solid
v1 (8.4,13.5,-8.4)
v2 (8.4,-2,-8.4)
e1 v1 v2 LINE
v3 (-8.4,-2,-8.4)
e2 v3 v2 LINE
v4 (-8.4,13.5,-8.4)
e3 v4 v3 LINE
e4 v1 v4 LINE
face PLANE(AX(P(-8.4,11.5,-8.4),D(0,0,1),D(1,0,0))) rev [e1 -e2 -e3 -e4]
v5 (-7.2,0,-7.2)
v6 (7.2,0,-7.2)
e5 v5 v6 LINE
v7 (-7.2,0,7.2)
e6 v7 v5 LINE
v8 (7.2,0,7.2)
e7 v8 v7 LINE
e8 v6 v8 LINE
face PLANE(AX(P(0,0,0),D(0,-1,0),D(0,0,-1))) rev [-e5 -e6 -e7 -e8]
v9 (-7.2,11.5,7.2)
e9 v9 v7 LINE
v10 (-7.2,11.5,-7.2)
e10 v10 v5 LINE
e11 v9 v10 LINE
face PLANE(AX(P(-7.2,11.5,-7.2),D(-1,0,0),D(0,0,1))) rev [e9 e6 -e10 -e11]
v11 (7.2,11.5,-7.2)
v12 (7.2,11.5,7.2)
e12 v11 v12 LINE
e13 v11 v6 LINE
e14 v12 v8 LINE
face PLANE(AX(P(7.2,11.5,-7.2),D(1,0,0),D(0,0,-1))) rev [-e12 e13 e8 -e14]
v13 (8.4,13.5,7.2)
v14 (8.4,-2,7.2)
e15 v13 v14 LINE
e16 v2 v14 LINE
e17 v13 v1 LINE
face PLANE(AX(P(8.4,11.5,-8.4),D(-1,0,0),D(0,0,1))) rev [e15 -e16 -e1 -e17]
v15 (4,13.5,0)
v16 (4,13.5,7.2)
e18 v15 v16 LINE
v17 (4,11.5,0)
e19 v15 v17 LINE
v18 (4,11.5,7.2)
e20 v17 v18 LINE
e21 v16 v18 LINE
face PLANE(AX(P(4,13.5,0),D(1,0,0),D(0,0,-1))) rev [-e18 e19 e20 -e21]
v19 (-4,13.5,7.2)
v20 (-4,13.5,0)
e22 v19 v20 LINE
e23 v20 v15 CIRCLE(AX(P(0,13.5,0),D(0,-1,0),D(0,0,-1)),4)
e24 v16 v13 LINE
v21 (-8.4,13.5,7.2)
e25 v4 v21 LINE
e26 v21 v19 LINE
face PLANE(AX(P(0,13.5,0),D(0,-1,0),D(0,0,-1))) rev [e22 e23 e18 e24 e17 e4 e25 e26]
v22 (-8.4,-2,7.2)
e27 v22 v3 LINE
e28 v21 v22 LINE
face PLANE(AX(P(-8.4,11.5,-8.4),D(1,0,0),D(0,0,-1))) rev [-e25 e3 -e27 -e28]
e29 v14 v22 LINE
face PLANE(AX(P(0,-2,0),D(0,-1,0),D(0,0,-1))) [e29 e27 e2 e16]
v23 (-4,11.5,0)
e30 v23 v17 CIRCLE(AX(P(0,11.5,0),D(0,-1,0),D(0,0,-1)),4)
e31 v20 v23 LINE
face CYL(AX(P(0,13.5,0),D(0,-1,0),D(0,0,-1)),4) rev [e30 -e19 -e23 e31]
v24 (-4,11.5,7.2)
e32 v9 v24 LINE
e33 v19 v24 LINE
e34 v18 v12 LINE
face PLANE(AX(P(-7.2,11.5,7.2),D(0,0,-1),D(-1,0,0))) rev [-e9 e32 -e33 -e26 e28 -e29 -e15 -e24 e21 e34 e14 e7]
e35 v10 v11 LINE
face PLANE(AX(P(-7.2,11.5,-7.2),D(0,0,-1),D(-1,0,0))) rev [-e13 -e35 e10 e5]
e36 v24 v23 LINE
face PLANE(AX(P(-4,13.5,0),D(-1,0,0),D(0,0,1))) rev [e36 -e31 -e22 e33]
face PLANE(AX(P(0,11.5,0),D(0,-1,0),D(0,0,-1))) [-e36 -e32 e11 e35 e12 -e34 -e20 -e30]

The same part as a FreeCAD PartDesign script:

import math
import FreeCAD as App
import Part
import Sketcher


def add_polygon(sketch, points):
    """Adds a closed chain of lines whose ends are joined by coincident constraints."""
    first, n = sketch.GeometryCount, len(points)
    for a, b in zip(points, points[1:] + points[:1]):
        sketch.addGeometry(Part.LineSegment(App.Vector(*a, 0), App.Vector(*b, 0)), False)
    for i in range(n):
        sketch.addConstraint(Sketcher.Constraint("Coincident", first + i, 2, first + (i + 1) % n, 1))

doc = App.newDocument("Part")
body = doc.addObject("PartDesign::Body", "Body")

sketch1 = doc.addObject("Sketcher::SketchObject", "Sketch")
body.addObject(sketch1)
sketch1.AttachmentSupport = (doc.XZ_Plane, [""])
sketch1.MapMode = "FlatFace"
add_polygon(sketch1, [(-8.4, -8.4), (-8.4, 7.2), (-7.2, 7.2), (-7.2, -7.2), (7.2, -7.2), (7.2, 7.2), (8.4, 7.2), (8.4, -8.4)])
sketch1.addConstraint(Sketcher.Constraint("Vertical", 0))
sketch1.addConstraint(Sketcher.Constraint("Horizontal", 1))
sketch1.addConstraint(Sketcher.Constraint("Vertical", 2))
sketch1.addConstraint(Sketcher.Constraint("Horizontal", 3))
sketch1.addConstraint(Sketcher.Constraint("Vertical", 4))
sketch1.addConstraint(Sketcher.Constraint("Horizontal", 5))
sketch1.addConstraint(Sketcher.Constraint("Vertical", 6))
sketch1.addConstraint(Sketcher.Constraint("Horizontal", 7))
sketch1.addConstraint(Sketcher.Constraint("Symmetric", 1, 2, 3, 2, -1, 1))
sketch1.addConstraint(Sketcher.Constraint("Symmetric", 0, 2, 5, 2, -2))
sketch1.addConstraint(Sketcher.Constraint("Equal", 3, 2))
sketch1.addConstraint(Sketcher.Constraint("DistanceX", 1, 1, 1, 2, 1.2))
sketch1.addConstraint(Sketcher.Constraint("DistanceX", 3, 1, 3, 2, 14.4))
sketch1.addConstraint(Sketcher.Constraint("DistanceY", 0, 1, 0, 2, 15.6))
pad1 = doc.addObject("PartDesign::Pad", "Pad")
body.addObject(pad1)
pad1.Profile = sketch1
pad1.Length = 11.5
pad1.Reversed = True

sketch2 = doc.addObject("Sketcher::SketchObject", "Sketch001")
body.addObject(sketch2)
sketch2.AttachmentSupport = (doc.XZ_Plane, [""])
sketch2.MapMode = "FlatFace"
add_polygon(sketch2, [(-8, 7), (-8, -8), (8, -8), (8, 7)])
sketch2.addConstraint(Sketcher.Constraint("Vertical", 0))
sketch2.addConstraint(Sketcher.Constraint("Horizontal", 1))
sketch2.addConstraint(Sketcher.Constraint("Vertical", 2))
sketch2.addConstraint(Sketcher.Constraint("Horizontal", 3))
sketch2.addConstraint(Sketcher.Constraint("DistanceX", 1, 1, 1, 2, 16.8))
sketch2.addConstraint(Sketcher.Constraint("DistanceY", 0, 2, 0, 1, 15.6))
sketch2.addConstraint(Sketcher.Constraint("DistanceX", 0, 2, -1, 1, 8.4))
sketch2.addConstraint(Sketcher.Constraint("DistanceY", 0, 2, -1, 1, 8.4))
pad2 = doc.addObject("PartDesign::Pad", "Pad001")
body.addObject(pad2)
pad2.Profile = sketch2
pad2.Length = 2

sketch3 = doc.addObject("Sketcher::SketchObject", "Sketch002")
body.addObject(sketch3)
sketch3.AttachmentSupport = (doc.XZ_Plane, [""])
sketch3.MapMode = "FlatFace"
sketch3.AttachmentOffset = App.Placement(App.Vector(0, 0, -11.5), App.Rotation())
sketch3.addGeometry(Part.LineSegment(App.Vector(-4, 7.2, 0), App.Vector(-4, 0, 0)), False)
sketch3.addGeometry(Part.ArcOfCircle(Part.Circle(App.Vector(0, 0, 0), App.Vector(0, 0, 1), 4), math.radians(180), math.radians(360)), False)
sketch3.addGeometry(Part.LineSegment(App.Vector(4, 0, 0), App.Vector(4, 7.2, 0)), False)
sketch3.addGeometry(Part.LineSegment(App.Vector(4, 7.2, 0), App.Vector(8.4, 7.2, 0)), False)
sketch3.addGeometry(Part.LineSegment(App.Vector(8.4, 7.2, 0), App.Vector(8.4, -8.4, 0)), False)
sketch3.addGeometry(Part.LineSegment(App.Vector(8.4, -8.4, 0), App.Vector(-8.4, -8.4, 0)), False)
sketch3.addGeometry(Part.LineSegment(App.Vector(-8.4, -8.4, 0), App.Vector(-8.4, 7.2, 0)), False)
sketch3.addGeometry(Part.LineSegment(App.Vector(-8.4, 7.2, 0), App.Vector(-4, 7.2, 0)), False)
sketch3.addConstraint(Sketcher.Constraint("Tangent", 0, 2, 1, 1))
sketch3.addConstraint(Sketcher.Constraint("Tangent", 1, 2, 2, 1))
sketch3.addConstraint(Sketcher.Constraint("Coincident", 2, 2, 3, 1))
sketch3.addConstraint(Sketcher.Constraint("Coincident", 3, 2, 4, 1))
sketch3.addConstraint(Sketcher.Constraint("Coincident", 4, 2, 5, 1))
sketch3.addConstraint(Sketcher.Constraint("Coincident", 5, 2, 6, 1))
sketch3.addConstraint(Sketcher.Constraint("Coincident", 6, 2, 7, 1))
sketch3.addConstraint(Sketcher.Constraint("Coincident", 7, 2, 0, 1))
sketch3.addConstraint(Sketcher.Constraint("Vertical", 0))
sketch3.addConstraint(Sketcher.Constraint("Vertical", 2))
sketch3.addConstraint(Sketcher.Constraint("Horizontal", 3))
sketch3.addConstraint(Sketcher.Constraint("Vertical", 4))
sketch3.addConstraint(Sketcher.Constraint("Horizontal", 5))
sketch3.addConstraint(Sketcher.Constraint("Vertical", 6))
sketch3.addConstraint(Sketcher.Constraint("Horizontal", 7))
sketch3.addConstraint(Sketcher.Constraint("Coincident", 1, 3, -1, 1))
sketch3.addConstraint(Sketcher.Constraint("Symmetric", 3, 2, 6, 2, -2))
sketch3.addConstraint(Sketcher.Constraint("Radius", 1, 4.0))
sketch3.addConstraint(Sketcher.Constraint("DistanceX", 3, 1, 3, 2, 4.4))
sketch3.addConstraint(Sketcher.Constraint("DistanceY", 0, 2, 0, 1, 7.2))
sketch3.addConstraint(Sketcher.Constraint("DistanceY", 4, 2, 4, 1, 15.6))
pad3 = doc.addObject("PartDesign::Pad", "Pad002")
body.addObject(pad3)
pad3.Profile = sketch3
pad3.Length = 2
pad3.Reversed = True

doc.recompute()
